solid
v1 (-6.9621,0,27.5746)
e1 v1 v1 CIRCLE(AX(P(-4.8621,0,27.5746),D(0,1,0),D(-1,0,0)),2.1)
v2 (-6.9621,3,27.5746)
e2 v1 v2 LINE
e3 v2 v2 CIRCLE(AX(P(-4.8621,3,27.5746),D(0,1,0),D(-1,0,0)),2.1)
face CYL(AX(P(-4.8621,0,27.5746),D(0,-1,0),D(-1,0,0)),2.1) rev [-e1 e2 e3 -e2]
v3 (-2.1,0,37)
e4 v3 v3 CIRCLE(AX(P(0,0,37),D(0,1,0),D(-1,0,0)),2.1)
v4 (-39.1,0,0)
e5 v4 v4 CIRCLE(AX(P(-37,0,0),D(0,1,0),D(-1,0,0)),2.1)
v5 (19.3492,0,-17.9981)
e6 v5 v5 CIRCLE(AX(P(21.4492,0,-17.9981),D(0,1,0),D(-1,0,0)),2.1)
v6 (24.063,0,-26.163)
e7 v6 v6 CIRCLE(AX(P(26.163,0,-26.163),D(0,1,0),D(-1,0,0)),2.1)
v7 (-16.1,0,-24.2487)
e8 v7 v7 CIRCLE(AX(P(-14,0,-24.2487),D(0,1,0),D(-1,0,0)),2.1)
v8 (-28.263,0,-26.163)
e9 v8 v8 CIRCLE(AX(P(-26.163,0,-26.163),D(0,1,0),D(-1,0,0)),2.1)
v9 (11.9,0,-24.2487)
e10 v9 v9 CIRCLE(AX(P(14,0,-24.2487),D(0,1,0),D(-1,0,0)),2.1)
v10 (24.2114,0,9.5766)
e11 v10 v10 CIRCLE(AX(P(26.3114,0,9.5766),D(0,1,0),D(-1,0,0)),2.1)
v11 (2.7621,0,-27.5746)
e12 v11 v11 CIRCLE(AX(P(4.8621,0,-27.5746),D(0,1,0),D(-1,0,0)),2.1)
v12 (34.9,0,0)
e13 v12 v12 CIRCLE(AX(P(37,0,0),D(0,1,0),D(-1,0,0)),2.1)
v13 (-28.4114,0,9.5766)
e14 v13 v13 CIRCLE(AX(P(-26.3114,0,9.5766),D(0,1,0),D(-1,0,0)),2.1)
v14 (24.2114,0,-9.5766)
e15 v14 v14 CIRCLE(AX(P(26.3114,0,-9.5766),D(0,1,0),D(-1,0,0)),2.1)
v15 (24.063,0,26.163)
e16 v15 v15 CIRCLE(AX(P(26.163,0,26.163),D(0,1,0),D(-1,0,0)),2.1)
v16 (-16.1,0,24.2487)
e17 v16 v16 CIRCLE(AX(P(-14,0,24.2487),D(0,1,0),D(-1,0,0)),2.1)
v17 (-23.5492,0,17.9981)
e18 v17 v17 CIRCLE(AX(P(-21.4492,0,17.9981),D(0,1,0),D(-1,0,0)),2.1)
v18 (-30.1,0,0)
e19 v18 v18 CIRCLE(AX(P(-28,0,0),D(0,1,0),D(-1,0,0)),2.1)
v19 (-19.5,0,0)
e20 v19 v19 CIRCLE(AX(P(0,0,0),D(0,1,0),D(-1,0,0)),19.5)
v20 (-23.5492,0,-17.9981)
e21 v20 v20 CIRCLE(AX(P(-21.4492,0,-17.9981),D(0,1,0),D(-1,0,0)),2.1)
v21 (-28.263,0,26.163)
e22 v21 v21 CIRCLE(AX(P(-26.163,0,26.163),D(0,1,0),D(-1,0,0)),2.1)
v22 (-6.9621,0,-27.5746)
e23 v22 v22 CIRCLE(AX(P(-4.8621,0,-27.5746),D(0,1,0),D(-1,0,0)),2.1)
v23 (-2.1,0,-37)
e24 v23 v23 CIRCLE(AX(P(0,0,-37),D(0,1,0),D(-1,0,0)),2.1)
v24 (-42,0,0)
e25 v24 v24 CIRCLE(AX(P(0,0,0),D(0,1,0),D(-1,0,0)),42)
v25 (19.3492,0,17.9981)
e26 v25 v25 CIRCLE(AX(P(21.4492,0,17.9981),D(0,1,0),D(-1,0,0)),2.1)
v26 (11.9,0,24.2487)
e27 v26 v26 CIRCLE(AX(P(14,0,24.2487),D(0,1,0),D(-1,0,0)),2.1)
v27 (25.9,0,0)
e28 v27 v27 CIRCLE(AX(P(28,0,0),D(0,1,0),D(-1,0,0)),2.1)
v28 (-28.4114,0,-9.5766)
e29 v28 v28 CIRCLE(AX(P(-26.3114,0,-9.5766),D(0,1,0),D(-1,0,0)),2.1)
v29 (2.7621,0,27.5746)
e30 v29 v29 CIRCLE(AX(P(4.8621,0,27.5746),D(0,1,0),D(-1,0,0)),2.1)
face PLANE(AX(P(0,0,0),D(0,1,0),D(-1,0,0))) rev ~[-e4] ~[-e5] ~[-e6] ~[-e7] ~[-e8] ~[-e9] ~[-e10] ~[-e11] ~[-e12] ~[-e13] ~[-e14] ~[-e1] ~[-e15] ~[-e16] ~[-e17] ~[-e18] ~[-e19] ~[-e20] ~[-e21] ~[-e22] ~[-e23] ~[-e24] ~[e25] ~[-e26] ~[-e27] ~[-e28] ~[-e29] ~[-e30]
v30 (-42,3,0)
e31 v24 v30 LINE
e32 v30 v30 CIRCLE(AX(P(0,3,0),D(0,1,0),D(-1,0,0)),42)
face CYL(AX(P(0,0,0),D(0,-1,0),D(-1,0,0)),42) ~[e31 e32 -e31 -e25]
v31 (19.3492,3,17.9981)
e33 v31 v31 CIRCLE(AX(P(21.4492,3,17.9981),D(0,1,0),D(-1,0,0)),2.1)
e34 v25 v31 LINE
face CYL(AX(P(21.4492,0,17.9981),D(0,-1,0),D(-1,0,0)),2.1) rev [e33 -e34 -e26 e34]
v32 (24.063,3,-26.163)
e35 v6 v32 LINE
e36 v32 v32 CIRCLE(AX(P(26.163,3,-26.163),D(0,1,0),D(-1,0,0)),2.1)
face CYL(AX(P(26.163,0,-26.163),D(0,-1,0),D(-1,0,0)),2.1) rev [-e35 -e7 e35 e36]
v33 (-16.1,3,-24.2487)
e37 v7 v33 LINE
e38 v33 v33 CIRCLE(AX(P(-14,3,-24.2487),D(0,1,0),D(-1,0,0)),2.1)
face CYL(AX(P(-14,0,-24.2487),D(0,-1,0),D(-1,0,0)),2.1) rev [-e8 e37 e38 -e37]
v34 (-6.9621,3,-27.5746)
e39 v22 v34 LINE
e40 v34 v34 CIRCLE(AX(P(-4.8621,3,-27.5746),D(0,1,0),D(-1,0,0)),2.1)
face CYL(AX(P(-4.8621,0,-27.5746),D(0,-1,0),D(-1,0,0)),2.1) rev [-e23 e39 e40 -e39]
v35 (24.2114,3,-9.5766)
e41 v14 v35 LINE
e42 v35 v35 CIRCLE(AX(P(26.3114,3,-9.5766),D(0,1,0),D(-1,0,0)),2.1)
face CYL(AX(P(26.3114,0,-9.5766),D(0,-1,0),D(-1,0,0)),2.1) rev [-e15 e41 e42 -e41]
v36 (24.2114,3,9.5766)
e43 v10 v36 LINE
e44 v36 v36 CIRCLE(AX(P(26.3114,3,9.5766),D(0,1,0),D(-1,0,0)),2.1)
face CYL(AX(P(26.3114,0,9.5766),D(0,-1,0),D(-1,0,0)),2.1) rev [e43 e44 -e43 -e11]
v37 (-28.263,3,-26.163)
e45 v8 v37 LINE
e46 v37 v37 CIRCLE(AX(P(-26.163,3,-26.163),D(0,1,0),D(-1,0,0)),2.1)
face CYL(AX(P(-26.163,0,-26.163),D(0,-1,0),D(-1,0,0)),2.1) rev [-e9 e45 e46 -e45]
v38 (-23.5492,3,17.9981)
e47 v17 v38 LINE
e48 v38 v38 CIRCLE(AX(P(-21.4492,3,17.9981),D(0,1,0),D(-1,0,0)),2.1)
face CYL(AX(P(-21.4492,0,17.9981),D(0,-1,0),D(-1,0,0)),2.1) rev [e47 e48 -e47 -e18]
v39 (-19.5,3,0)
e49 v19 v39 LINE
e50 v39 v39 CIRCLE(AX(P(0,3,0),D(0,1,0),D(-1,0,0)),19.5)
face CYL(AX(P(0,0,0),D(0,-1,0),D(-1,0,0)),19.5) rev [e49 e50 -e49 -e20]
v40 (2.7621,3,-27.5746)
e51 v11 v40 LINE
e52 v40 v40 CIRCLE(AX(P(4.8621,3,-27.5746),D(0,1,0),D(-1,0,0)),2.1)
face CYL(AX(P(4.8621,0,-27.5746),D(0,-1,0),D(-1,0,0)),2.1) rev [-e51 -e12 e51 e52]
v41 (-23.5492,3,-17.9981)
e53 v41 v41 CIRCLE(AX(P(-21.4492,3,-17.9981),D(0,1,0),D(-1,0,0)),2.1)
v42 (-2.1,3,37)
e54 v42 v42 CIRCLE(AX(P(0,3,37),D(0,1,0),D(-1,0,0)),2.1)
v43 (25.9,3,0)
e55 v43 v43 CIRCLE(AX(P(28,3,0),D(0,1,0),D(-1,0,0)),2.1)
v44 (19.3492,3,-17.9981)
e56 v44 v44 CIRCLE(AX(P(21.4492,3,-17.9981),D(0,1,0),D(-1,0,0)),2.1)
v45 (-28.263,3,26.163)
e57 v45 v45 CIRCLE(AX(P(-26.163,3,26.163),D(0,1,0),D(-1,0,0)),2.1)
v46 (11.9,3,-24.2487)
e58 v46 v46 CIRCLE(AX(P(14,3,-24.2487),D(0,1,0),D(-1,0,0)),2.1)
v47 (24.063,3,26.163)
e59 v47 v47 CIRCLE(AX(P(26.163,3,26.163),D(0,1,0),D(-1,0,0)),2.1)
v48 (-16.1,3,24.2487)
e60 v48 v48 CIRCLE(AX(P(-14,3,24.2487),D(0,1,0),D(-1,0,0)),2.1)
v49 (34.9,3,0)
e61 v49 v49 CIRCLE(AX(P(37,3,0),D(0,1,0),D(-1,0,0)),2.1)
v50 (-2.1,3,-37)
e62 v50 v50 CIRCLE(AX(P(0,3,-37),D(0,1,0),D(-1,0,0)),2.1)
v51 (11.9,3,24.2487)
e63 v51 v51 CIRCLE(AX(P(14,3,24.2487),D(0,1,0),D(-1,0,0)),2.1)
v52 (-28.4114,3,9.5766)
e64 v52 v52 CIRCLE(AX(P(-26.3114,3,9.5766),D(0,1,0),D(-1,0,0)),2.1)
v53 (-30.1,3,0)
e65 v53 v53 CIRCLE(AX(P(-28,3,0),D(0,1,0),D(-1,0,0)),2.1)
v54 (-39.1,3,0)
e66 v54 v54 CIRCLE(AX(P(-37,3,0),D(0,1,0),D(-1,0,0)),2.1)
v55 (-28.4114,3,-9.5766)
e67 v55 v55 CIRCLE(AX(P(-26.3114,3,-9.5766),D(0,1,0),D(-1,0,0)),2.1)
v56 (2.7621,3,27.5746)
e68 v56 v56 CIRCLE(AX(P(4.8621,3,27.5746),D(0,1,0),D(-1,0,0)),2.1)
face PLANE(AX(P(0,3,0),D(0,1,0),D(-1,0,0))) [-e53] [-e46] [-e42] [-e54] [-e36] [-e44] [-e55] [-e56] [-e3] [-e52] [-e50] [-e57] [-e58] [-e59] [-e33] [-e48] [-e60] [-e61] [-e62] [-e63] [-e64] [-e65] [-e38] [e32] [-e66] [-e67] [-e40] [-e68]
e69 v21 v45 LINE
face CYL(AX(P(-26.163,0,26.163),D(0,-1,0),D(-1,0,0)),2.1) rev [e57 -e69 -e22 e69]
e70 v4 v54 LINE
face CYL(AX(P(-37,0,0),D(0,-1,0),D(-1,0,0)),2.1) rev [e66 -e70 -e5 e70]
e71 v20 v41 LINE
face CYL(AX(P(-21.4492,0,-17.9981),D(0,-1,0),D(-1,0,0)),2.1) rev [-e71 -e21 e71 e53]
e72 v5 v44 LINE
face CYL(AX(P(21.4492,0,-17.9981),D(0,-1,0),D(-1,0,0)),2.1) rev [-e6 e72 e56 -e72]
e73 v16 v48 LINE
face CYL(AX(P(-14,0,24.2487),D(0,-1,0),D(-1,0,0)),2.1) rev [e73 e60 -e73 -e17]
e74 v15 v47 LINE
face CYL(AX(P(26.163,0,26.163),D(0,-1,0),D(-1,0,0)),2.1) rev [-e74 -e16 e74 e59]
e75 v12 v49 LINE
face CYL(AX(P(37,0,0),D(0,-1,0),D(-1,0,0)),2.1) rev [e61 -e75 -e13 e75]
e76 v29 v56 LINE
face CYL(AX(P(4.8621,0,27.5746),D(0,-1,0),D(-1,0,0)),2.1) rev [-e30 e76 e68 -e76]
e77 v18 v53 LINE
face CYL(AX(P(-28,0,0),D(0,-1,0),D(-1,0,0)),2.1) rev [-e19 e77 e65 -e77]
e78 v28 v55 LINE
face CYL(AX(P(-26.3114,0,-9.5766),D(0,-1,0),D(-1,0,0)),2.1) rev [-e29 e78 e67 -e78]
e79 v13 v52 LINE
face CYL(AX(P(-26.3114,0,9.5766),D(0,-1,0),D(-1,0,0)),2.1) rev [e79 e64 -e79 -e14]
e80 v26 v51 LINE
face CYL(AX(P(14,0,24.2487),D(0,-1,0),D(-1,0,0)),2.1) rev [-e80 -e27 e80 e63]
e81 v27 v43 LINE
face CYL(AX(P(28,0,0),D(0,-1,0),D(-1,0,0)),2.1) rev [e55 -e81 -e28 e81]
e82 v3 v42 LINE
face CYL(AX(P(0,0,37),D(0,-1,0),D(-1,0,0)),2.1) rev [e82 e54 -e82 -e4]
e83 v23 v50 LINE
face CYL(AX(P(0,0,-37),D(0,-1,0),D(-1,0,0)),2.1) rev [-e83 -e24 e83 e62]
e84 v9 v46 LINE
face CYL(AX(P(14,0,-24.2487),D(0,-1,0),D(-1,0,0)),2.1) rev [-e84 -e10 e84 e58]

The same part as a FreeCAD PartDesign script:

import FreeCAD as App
import Part
import Sketcher

doc = App.newDocument("Part")
body = doc.addObject("PartDesign::Body", "Body")

# Sketch on XZ plane
sketch1 = body.newObject("Sketcher::SketchObject", "Sketch")
sketch1.AttachmentSupport = (doc.getObject("XZ_Plane"), [""])
sketch1.MapMode = "FlatFace"
sketch1.addGeometry(Part.Circle(App.Vector(0, 0, 0), App.Vector(0, 0, 1), 42), False)
sketch1.addGeometry(Part.Circle(App.Vector(26.163, -26.163, 0), App.Vector(0, 0, 1), 2.1), False)
sketch1.addGeometry(Part.Circle(App.Vector(14, -24.2487, 0), App.Vector(0, 0, 1), 2.1), False)
sketch1.addGeometry(Part.Circle(App.Vector(4.8621, -27.5746, 0), App.Vector(0, 0, 1), 2.1), False)
sketch1.addGeometry(Part.Circle(App.Vector(21.4492, -17.9981, 0), App.Vector(0, 0, 1), 2.1), False)
sketch1.addGeometry(Part.Circle(App.Vector(26.3114, -9.5766, 0), App.Vector(0, 0, 1), 2.1), False)
sketch1.addGeometry(Part.Circle(App.Vector(0, -37, 0), App.Vector(0, 0, 1), 2.1), False)
sketch1.addGeometry(Part.Circle(App.Vector(-4.8621, -27.5746, 0), App.Vector(0, 0, 1), 2.1), False)
sketch1.addGeometry(Part.Circle(App.Vector(-14, -24.2487, 0), App.Vector(0, 0, 1), 2.1), False)
sketch1.addGeometry(Part.Circle(App.Vector(-26.163, -26.163, 0), App.Vector(0, 0, 1), 2.1), False)
sketch1.addGeometry(Part.Circle(App.Vector(-21.4492, -17.9981, 0), App.Vector(0, 0, 1), 2.1), False)
sketch1.addGeometry(Part.Circle(App.Vector(-26.3114, -9.5766, 0), App.Vector(0, 0, 1), 2.1), False)
sketch1.addGeometry(Part.Circle(App.Vector(37, 0, 0), App.Vector(0, 0, 1), 2.1), False)
sketch1.addGeometry(Part.Circle(App.Vector(28, 0, 0), App.Vector(0, 0, 1), 2.1), False)
sketch1.addGeometry(Part.Circle(App.Vector(26.3114, 9.5766, 0), App.Vector(0, 0, 1), 2.1), False)
sketch1.addGeometry(Part.Circle(App.Vector(21.4492, 17.9981, 0), App.Vector(0, 0, 1), 2.1), False)
sketch1.addGeometry(Part.Circle(App.Vector(26.163, 26.163, 0), App.Vector(0, 0, 1), 2.1), False)
sketch1.addGeometry(Part.Circle(App.Vector(14, 24.2487, 0), App.Vector(0, 0, 1), 2.1), False)
sketch1.addGeometry(Part.Circle(App.Vector(4.8621, 27.5746, 0), App.Vector(0, 0, 1), 2.1), False)
sketch1.addGeometry(Part.Circle(App.Vector(0, 0, 0), App.Vector(0, 0, 1), 19.5), False)
sketch1.addGeometry(Part.Circle(App.Vector(-28, 0, 0), App.Vector(0, 0, 1), 2.1), False)
sketch1.addGeometry(Part.Circle(App.Vector(-26.3114, 9.5766, 0), App.Vector(0, 0, 1), 2.1), False)
sketch1.addGeometry(Part.Circle(App.Vector(-37, 0, 0), App.Vector(0, 0, 1), 2.1), False)
sketch1.addGeometry(Part.Circle(App.Vector(-21.4492, 17.9981, 0), App.Vector(0, 0, 1), 2.1), False)
sketch1.addGeometry(Part.Circle(App.Vector(-4.8621, 27.5746, 0), App.Vector(0, 0, 1), 2.1), False)
sketch1.addGeometry(Part.Circle(App.Vector(-14, 24.2487, 0), App.Vector(0, 0, 1), 2.1), False)
sketch1.addGeometry(Part.Circle(App.Vector(0, 37, 0), App.Vector(0, 0, 1), 2.1), False)
sketch1.addGeometry(Part.Circle(App.Vector(-26.163, 26.163, 0), App.Vector(0, 0, 1), 2.1), False)
sketch1.addConstraint(Sketcher.Constraint("Coincident", 0, 3, -1, 1))
sketch1.addConstraint(Sketcher.Constraint("Coincident", 19, 3, -1, 1))
sketch1.addConstraint(Sketcher.Constraint("Equal", 1, 2))
sketch1.addConstraint(Sketcher.Constraint("Equal", 2, 3))
sketch1.addConstraint(Sketcher.Constraint("Equal", 3, 4))
sketch1.addConstraint(Sketcher.Constraint("Equal", 4, 5))
sketch1.addConstraint(Sketcher.Constraint("Equal", 5, 6))
sketch1.addConstraint(Sketcher.Constraint("Equal", 6, 7))
sketch1.addConstraint(Sketcher.Constraint("Equal", 7, 8))
sketch1.addConstraint(Sketcher.Constraint("Equal", 8, 9))
sketch1.addConstraint(Sketcher.Constraint("Equal", 9, 10))
sketch1.addConstraint(Sketcher.Constraint("Equal", 10, 11))
sketch1.addConstraint(Sketcher.Constraint("Equal", 11, 12))
sketch1.addConstraint(Sketcher.Constraint("Equal", 12, 13))
sketch1.addConstraint(Sketcher.Constraint("Equal", 13, 14))
sketch1.addConstraint(Sketcher.Constraint("Equal", 14, 15))
sketch1.addConstraint(Sketcher.Constraint("Equal", 15, 16))
sketch1.addConstraint(Sketcher.Constraint("Equal", 16, 17))
sketch1.addConstraint(Sketcher.Constraint("Equal", 17, 18))
sketch1.addConstraint(Sketcher.Constraint("Equal", 18, 20))
sketch1.addConstraint(Sketcher.Constraint("Equal", 20, 21))
sketch1.addConstraint(Sketcher.Constraint("Equal", 21, 22))
sketch1.addConstraint(Sketcher.Constraint("Equal", 22, 23))
sketch1.addConstraint(Sketcher.Constraint("Equal", 23, 24))
sketch1.addConstraint(Sketcher.Constraint("Equal", 24, 25))
sketch1.addConstraint(Sketcher.Constraint("Equal", 25, 26))
sketch1.addConstraint(Sketcher.Constraint("Equal", 26, 27))
sketch1.addConstraint(Sketcher.Constraint("Symmetric", 11, 3, 14, 3, -1, 1))
sketch1.addConstraint(Sketcher.Constraint("Symmetric", 10, 3, 15, 3, -1, 1))
sketch1.addConstraint(Sketcher.Constraint("Symmetric", 9, 3, 16, 3, -1, 1))
sketch1.addConstraint(Sketcher.Constraint("Symmetric", 8, 3, 17, 3, -1, 1))
sketch1.addConstraint(Sketcher.Constraint("Symmetric", 7, 3, 18, 3, -1, 1))
sketch1.addConstraint(Sketcher.Constraint("Symmetric", 13, 3, 20, 3, -1, 1))
sketch1.addConstraint(Sketcher.Constraint("Symmetric", 5, 3, 21, 3, -1, 1))
sketch1.addConstraint(Sketcher.Constraint("Symmetric", 12, 3, 22, 3, -1, 1))
sketch1.addConstraint(Sketcher.Constraint("Symmetric", 4, 3, 23, 3, -1, 1))
sketch1.addConstraint(Sketcher.Constraint("Symmetric", 3, 3, 24, 3, -1, 1))
sketch1.addConstraint(Sketcher.Constraint("Symmetric", 2, 3, 25, 3, -1, 1))
sketch1.addConstraint(Sketcher.Constraint("Symmetric", 6, 3, 26, 3, -1, 1))
sketch1.addConstraint(Sketcher.Constraint("Symmetric", 1, 3, 27, 3, -1, 1))
sketch1.addConstraint(Sketcher.Constraint("Symmetric", 3, 3, 7, 3, -2))
sketch1.addConstraint(Sketcher.Constraint("Symmetric", 2, 3, 8, 3, -2))
sketch1.addConstraint(Sketcher.Constraint("Symmetric", 1, 3, 9, 3, -2))
sketch1.addConstraint(Sketcher.Constraint("Symmetric", 4, 3, 10, 3, -2))
sketch1.addConstraint(Sketcher.Constraint("Symmetric", 5, 3, 11, 3, -2))
sketch1.addConstraint(Sketcher.Constraint("PointOnObject", 6, 3, -2))
sketch1.addConstraint(Sketcher.Constraint("PointOnObject", 12, 3, -1))
sketch1.addConstraint(Sketcher.Constraint("PointOnObject", 13, 3, -1))
sketch1.addConstraint(Sketcher.Constraint("Diameter", 0, 84.0))
sketch1.addConstraint(Sketcher.Constraint("Diameter", 19, 39.0))
sketch1.addConstraint(Sketcher.Constraint("Diameter", 1, 4.2))
sketch1.addConstraint(Sketcher.Constraint("DistanceY", 6, 3, -1, 1, 37.0))
sketch1.addConstraint(Sketcher.Constraint("DistanceX", -1, 1, 12, 3, 37.0))
sketch1.addConstraint(Sketcher.Constraint("DistanceX", -1, 1, 13, 3, 28.0))
sketch1.addConstraint(Sketcher.Constraint("DistanceX", 8, 3, 2, 3, 28.0))
sketch1.addConstraint(Sketcher.Constraint("DistanceX", -1, 1, 1, 3, 26.163))
sketch1.addConstraint(Sketcher.Constraint("DistanceY", 1, 3, -1, 1, 26.163))
sketch1.addConstraint(Sketcher.Constraint("DistanceX", -1, 1, 3, 3, 4.862))
sketch1.addConstraint(Sketcher.Constraint("DistanceY", 4, 3, -1, 1, 17.998))
sketch1.addConstraint(Sketcher.Constraint("DistanceY", 3, 3, 2, 3, 3.326))
sketch1.addConstraint(Sketcher.Constraint("DistanceX", 3, 3, 4, 3, 16.587))
sketch1.addConstraint(Sketcher.Constraint("DistanceY", 2, 3, 5, 3, 14.672))
sketch1.addConstraint(Sketcher.Constraint("DistanceY", 2, 3, -1, 1, 24.2487))
sketch1.addConstraint(Sketcher.Constraint("DistanceX", -1, 1, 5, 3, 26.3114))
pad1 = body.newObject("PartDesign::Pad", "Pad")
pad1.Profile = sketch1
pad1.Length = 3
pad1.Reversed = True

doc.recompute()
